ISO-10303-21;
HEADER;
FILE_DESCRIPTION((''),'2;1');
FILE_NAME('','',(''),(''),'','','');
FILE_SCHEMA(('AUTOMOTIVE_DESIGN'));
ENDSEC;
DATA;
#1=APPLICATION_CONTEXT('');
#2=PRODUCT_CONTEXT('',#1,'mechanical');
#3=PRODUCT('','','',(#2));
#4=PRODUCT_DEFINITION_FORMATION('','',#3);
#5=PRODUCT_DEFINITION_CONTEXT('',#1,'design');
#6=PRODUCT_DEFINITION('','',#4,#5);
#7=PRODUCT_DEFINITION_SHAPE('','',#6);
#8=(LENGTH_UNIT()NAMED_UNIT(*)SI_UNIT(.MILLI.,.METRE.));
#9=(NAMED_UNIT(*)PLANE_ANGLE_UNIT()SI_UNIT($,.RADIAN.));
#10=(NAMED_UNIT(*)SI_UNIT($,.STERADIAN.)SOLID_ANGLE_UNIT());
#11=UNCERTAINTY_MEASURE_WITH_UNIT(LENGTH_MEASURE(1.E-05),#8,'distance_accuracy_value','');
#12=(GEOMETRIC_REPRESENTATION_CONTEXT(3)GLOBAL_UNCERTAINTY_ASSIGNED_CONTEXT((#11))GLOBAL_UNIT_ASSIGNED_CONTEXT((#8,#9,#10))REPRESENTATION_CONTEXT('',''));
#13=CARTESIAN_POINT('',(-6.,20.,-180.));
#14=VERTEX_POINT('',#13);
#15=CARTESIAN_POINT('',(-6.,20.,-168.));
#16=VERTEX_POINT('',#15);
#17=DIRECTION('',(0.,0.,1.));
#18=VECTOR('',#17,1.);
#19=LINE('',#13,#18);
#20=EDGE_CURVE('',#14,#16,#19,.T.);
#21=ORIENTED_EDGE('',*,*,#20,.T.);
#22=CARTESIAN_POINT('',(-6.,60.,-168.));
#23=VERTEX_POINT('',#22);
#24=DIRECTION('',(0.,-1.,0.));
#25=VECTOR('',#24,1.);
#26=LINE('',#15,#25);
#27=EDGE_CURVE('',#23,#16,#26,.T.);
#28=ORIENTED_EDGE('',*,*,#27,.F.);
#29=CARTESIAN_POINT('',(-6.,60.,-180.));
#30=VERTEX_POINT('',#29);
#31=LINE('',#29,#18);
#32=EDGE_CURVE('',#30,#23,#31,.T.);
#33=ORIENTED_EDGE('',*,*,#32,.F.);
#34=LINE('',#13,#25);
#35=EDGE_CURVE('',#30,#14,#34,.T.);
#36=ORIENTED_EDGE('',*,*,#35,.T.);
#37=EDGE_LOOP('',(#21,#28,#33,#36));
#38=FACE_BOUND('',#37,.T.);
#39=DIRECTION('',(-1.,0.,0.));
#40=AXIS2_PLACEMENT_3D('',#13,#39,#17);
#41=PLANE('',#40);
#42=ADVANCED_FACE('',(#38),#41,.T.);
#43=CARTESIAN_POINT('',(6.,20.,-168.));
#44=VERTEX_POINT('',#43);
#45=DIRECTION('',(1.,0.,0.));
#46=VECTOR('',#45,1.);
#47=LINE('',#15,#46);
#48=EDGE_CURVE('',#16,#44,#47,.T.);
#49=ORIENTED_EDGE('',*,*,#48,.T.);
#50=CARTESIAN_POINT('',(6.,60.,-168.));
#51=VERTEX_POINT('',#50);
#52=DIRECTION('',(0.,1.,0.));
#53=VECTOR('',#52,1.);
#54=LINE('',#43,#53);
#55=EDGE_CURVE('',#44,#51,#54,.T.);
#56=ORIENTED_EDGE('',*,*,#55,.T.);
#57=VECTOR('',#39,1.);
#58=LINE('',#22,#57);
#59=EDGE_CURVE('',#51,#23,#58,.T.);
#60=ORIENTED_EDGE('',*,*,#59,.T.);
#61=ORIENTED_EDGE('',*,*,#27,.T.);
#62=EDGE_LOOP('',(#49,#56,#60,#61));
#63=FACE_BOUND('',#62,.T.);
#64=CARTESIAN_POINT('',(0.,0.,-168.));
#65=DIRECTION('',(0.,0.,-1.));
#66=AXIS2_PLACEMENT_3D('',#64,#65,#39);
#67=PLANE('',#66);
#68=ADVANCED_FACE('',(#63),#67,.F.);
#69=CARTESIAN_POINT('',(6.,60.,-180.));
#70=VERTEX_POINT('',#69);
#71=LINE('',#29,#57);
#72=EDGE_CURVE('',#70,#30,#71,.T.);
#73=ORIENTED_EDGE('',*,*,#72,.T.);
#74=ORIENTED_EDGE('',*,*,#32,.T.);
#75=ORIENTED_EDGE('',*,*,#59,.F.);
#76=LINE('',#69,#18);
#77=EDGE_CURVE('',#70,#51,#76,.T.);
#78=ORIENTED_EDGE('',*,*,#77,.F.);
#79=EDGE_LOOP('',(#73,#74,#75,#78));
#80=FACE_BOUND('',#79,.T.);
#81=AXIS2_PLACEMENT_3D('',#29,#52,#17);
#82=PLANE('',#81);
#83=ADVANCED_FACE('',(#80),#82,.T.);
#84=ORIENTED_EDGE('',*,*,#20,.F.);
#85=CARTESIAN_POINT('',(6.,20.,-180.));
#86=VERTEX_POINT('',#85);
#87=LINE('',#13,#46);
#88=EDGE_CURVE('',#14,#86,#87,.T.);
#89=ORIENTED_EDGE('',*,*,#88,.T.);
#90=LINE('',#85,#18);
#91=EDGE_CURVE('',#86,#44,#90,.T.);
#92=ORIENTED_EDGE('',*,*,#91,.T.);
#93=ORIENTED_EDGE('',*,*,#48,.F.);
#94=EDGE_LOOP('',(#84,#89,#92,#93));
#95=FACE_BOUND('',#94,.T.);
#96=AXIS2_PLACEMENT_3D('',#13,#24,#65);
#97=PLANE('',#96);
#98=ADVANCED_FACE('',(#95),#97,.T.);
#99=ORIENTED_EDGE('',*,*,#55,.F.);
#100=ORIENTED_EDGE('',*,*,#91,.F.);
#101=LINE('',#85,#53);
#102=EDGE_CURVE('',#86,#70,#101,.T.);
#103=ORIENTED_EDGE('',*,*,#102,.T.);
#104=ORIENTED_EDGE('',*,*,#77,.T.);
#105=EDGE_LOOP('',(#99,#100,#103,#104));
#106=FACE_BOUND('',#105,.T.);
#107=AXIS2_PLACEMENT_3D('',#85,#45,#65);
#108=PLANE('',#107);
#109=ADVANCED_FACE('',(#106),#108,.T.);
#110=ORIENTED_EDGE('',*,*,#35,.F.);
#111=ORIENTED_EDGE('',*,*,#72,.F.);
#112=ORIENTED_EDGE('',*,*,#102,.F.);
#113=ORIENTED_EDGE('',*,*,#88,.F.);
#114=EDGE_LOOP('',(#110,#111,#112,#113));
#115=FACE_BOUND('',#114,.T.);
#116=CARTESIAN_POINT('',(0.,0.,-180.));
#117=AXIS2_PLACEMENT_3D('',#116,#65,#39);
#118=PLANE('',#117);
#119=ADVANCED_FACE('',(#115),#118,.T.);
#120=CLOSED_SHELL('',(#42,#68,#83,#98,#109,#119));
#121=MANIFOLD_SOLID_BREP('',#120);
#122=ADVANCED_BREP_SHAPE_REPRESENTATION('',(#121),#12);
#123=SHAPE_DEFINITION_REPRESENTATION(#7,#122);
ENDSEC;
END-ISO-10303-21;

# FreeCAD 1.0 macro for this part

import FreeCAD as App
import Part
import Sketcher

doc = App.newDocument("Part")
params = doc.addObject("Spreadsheet::Sheet", "Params")
for row, (alias, value) in enumerate([
    ("sketch1_width", "12 mm"),
    ("sketch1_height", "40 mm"),
    ("pad1_length", "12 mm"),
], start=1):
    params.set(f"A{row}", alias)
    params.set(f"B{row}", "=" + value)
    params.setAlias(f"B{row}", alias)

body = doc.addObject("PartDesign::Body", "Body")

sketch1 = body.newObject("Sketcher::SketchObject", "Sketch")
sketch1.AttachmentSupport = (doc.getObject("XY_Plane"), [""])
sketch1.MapMode = "FlatFace"
sketch1.AttachmentOffset = App.Placement(App.Vector(0, 0, -168), App.Rotation())
sketch1.addGeometry([
    Part.LineSegment(App.Vector(-6, 60, 0), App.Vector(-6, 20, 0)),
    Part.LineSegment(App.Vector(-6, 20, 0), App.Vector(6, 20, 0)),
    Part.LineSegment(App.Vector(6, 20, 0), App.Vector(6, 60, 0)),
    Part.LineSegment(App.Vector(6, 60, 0), App.Vector(-6, 60, 0)),
], False)
sketch1.addConstraint([
    Sketcher.Constraint("Coincident", 0, 2, 1, 1),
    Sketcher.Constraint("Coincident", 1, 2, 2, 1),
    Sketcher.Constraint("Coincident", 2, 2, 3, 1),
    Sketcher.Constraint("Coincident", 3, 2, 0, 1),
    Sketcher.Constraint("Vertical", 0),
    Sketcher.Constraint("Horizontal", 1),
    Sketcher.Constraint("Vertical", 2),
    Sketcher.Constraint("Horizontal", 3),
    Sketcher.Constraint("DistanceX", 1, 1, 1, 2, 12.0),
    Sketcher.Constraint("DistanceY", 0, 2, 0, 1, 40.0),
    Sketcher.Constraint("DistanceX", 0, 2, -1, 1, 6.0),
    Sketcher.Constraint("DistanceY", -1, 1, 0, 2, 20.0),
])
sketch1.setExpression("Constraints[8]", "Params.sketch1_width")
sketch1.setExpression("Constraints[9]", "Params.sketch1_height")
pad1 = body.newObject("PartDesign::Pad", "Pad")
pad1.Profile = sketch1
pad1.setExpression("Length", "Params.pad1_length")
pad1.Reversed = True

doc.recompute()
